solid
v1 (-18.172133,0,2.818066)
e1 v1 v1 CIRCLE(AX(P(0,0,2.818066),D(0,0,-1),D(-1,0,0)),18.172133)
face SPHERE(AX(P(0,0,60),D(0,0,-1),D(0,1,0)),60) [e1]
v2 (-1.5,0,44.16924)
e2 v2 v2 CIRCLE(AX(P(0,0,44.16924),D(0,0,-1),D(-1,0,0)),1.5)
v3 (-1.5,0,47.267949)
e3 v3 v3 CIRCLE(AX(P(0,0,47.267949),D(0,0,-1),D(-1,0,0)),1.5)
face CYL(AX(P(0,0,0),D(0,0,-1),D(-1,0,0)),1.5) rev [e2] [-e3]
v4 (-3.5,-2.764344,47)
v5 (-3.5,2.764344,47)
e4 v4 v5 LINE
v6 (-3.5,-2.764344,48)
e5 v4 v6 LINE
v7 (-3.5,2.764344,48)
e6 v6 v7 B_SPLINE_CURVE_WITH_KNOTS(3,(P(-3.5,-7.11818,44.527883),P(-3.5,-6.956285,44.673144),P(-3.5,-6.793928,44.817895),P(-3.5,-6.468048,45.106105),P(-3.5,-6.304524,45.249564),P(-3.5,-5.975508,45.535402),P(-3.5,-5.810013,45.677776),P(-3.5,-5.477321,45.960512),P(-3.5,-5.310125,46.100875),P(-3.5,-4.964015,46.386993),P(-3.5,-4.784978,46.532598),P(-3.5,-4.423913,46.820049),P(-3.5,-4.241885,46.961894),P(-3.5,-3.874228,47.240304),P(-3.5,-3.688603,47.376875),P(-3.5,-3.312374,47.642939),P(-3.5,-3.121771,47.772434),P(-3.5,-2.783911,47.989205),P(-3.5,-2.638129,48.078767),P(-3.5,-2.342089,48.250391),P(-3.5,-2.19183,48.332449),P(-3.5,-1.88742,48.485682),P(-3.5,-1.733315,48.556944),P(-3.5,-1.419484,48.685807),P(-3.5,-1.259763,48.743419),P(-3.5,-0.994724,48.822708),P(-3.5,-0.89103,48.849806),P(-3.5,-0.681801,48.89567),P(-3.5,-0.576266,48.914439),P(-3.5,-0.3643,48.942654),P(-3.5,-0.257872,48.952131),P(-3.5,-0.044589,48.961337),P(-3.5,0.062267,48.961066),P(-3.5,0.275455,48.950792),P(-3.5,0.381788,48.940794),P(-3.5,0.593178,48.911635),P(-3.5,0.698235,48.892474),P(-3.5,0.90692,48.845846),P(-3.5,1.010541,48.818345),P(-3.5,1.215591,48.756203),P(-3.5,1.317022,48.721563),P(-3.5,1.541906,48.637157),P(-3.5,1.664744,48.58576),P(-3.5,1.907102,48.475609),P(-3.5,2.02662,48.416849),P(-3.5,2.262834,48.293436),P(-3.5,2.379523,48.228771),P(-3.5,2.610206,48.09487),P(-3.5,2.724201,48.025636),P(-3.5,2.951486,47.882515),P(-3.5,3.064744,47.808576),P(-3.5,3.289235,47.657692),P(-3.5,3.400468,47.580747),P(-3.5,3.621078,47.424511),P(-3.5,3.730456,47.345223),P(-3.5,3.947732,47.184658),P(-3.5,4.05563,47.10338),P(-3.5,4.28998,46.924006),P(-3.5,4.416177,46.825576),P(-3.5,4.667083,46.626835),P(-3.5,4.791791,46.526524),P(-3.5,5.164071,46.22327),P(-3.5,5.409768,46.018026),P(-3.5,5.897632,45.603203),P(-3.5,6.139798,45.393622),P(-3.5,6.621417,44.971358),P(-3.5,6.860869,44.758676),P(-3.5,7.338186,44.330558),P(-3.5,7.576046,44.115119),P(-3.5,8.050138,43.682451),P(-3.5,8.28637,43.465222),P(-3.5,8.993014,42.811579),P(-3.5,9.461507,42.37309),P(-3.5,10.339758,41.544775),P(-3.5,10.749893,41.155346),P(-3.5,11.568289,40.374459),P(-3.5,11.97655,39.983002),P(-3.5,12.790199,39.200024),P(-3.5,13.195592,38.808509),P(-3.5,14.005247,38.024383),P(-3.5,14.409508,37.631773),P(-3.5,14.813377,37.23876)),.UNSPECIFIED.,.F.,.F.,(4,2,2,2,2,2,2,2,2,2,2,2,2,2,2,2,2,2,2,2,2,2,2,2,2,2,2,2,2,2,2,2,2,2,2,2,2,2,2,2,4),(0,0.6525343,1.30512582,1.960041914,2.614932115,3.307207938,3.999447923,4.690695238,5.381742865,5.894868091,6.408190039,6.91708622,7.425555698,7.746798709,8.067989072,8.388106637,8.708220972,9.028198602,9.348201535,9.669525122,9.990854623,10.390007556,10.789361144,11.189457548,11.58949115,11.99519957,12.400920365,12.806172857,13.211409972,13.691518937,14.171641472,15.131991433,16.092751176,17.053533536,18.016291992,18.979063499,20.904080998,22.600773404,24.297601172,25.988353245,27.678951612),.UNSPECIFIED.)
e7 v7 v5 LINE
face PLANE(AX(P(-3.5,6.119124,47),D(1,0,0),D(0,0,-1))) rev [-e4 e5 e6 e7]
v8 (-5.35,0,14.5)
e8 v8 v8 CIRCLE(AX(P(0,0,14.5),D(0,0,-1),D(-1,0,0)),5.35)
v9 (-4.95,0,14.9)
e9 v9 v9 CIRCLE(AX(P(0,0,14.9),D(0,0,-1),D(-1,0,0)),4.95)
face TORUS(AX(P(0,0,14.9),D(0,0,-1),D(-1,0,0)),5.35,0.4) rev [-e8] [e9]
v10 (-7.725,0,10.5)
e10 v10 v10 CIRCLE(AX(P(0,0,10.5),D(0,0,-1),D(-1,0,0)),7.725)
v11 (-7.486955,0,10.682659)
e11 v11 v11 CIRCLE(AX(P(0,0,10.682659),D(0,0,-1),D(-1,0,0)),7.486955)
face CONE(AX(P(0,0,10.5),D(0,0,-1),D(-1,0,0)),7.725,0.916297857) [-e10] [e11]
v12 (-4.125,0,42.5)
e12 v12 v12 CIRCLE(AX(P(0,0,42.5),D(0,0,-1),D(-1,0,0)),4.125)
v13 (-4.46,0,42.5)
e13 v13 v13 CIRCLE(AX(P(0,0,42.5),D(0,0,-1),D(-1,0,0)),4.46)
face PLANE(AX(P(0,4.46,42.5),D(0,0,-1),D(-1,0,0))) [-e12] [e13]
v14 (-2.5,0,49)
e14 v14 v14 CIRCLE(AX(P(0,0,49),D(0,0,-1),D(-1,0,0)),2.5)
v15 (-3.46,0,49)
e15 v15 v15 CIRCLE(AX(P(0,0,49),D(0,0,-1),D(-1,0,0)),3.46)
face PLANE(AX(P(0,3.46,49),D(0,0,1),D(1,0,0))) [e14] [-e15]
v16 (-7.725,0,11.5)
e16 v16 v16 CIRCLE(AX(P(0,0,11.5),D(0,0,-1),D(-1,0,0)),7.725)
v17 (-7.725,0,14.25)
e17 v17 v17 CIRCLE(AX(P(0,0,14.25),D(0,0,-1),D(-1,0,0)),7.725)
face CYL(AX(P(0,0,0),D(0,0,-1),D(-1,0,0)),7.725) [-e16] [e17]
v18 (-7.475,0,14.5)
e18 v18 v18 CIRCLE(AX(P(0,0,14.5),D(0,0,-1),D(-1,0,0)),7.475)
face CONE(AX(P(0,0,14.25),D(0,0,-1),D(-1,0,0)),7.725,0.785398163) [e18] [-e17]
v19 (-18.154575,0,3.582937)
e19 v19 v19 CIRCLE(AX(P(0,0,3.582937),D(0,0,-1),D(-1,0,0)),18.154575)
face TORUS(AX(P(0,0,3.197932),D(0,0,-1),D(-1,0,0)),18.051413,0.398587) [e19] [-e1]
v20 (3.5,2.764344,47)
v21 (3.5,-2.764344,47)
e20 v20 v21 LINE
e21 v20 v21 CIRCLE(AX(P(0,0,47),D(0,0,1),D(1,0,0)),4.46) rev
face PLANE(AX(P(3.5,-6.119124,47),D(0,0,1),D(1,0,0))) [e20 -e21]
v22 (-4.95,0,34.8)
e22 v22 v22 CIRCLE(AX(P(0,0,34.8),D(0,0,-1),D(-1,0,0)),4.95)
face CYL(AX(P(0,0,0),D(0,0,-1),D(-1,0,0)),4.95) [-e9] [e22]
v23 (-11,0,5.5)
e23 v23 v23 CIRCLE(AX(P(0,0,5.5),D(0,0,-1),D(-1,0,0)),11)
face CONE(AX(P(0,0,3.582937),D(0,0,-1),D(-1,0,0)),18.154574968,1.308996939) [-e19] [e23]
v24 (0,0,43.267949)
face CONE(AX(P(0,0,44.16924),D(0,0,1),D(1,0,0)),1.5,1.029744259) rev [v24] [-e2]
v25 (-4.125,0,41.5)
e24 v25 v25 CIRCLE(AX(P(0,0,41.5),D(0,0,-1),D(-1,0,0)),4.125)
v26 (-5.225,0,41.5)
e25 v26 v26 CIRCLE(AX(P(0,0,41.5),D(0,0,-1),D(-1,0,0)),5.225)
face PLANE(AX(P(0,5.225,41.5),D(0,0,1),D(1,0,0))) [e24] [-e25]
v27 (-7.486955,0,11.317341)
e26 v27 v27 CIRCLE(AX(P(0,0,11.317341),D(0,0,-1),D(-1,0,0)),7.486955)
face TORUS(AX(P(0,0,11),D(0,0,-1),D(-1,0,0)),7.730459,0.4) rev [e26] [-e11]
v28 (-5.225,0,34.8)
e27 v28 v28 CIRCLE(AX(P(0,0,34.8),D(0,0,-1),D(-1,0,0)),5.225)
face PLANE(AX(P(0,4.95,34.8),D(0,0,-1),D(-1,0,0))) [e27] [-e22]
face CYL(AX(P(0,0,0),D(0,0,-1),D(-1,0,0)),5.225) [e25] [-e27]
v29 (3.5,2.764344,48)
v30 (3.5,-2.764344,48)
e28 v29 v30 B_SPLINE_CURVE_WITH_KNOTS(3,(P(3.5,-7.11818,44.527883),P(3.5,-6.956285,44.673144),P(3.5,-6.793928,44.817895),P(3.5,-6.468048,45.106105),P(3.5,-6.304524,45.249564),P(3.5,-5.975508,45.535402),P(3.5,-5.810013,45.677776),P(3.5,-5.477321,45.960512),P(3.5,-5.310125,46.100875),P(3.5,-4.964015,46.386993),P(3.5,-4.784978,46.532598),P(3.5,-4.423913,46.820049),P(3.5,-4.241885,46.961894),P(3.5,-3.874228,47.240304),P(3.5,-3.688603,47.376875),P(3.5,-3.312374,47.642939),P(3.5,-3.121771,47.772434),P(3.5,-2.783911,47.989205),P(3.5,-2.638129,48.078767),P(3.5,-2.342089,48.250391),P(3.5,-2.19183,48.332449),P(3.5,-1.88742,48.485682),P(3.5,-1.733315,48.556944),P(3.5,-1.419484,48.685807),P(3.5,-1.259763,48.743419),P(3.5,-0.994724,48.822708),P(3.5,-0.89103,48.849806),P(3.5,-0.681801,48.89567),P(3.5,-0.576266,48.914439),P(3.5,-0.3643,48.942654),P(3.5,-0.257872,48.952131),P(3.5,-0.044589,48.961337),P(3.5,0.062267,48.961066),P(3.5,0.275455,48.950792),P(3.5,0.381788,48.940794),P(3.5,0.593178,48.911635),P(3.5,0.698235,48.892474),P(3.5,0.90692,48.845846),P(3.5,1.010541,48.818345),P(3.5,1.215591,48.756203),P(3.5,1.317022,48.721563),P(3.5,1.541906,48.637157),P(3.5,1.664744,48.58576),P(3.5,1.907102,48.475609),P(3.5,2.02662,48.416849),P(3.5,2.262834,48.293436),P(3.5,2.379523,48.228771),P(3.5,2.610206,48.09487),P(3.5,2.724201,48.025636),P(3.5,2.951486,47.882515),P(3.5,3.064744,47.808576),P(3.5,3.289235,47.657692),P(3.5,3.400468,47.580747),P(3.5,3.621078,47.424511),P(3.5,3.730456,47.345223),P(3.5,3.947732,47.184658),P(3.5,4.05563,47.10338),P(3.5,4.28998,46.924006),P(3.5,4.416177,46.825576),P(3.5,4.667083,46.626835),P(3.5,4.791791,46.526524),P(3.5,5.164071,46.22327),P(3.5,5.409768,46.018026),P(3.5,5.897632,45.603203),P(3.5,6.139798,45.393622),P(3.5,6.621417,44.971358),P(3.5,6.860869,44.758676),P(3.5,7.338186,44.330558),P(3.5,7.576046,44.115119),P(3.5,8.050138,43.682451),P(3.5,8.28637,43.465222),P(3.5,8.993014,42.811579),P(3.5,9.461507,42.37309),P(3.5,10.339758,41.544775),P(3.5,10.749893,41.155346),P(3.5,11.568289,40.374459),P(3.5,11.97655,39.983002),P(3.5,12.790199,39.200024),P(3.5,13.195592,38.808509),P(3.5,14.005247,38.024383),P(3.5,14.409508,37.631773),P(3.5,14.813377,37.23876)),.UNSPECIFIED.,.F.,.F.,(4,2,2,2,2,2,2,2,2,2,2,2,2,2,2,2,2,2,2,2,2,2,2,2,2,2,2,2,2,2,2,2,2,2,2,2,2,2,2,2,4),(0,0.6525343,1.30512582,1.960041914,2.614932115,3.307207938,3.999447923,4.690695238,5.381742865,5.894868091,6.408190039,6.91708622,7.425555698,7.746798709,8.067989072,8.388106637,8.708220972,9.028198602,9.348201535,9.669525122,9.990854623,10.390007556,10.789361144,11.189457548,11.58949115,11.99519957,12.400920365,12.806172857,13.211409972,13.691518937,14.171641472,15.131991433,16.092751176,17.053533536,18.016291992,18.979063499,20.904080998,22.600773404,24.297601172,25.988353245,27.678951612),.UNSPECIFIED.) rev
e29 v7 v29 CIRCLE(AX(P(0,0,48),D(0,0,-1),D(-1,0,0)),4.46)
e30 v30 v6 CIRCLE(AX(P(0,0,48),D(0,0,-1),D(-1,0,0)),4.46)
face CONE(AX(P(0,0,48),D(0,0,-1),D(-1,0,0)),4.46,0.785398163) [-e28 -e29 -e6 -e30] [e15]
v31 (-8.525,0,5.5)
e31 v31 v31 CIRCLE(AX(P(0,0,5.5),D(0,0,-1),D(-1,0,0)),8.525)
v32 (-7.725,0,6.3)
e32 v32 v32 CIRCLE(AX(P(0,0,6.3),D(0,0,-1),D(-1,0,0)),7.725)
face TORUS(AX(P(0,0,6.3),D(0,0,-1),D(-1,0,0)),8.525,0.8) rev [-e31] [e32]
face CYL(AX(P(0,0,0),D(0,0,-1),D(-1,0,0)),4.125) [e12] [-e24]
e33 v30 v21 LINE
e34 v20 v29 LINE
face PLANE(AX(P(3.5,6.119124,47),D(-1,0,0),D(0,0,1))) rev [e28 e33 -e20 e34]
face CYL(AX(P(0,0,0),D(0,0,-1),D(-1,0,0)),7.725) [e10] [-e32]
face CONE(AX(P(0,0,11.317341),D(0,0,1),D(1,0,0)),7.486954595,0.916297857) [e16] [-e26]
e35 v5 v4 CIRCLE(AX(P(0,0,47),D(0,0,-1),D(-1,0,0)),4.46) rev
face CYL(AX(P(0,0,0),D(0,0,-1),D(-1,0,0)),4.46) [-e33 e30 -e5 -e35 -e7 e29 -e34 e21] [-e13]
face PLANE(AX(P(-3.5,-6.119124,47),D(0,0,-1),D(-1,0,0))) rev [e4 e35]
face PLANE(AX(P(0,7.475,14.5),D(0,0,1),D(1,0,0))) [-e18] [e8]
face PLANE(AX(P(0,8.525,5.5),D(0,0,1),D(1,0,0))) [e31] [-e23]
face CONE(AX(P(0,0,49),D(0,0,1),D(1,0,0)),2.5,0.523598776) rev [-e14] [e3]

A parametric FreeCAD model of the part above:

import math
import FreeCAD as App
import Part
import Sketcher

V = App.Vector
Q = App.Units.Quantity

doc = App.newDocument("Part")
params = doc.addObject("Spreadsheet::Sheet", "Params")
for row, (alias, value) in enumerate([
    ("sketch1_radius", "60 mm"),
    ("sketch1_radius2", "0.4 mm"),
    ("sketch1_radius3", "0.8 mm"),
    ("sketch1_height", "1 mm"),
    ("sketch1_length", "2 mm"),
    ("revolution_angle", "360 deg"),
    ("pocket1_length", "2 mm"),
], start=1):
    params.set(f"A{row}", alias)
    params.set(f"B{row}", "=" + value)
    params.setAlias(f"B{row}", alias)

body = doc.addObject("PartDesign::Body", "Body")

sketch1 = doc.addObject("Sketcher::SketchObject", "Sketch")
body.addObject(sketch1)
sketch1.AttachmentSupport = (doc.YZ_Plane, [""])
sketch1.MapMode = "FlatFace"
sketch1.addGeometry([
    Part.LineSegment(V(7.72, 11.5, 0), V(7.72, 14.25, 0)),
    Part.LineSegment(V(7.72, 14.25, 0), V(7.47, 14.5, 0)),
    Part.LineSegment(V(7.47, 14.5, 0), V(5.35, 14.5, 0)),
    Part.ArcOfCircle(Part.Circle(V(5.35, 14.9, 0), V(0, 0, 1), 0.4), math.radians(-180), math.radians(-90)),
    Part.LineSegment(V(4.95, 14.9, 0), V(4.95, 34.8, 0)),
    Part.LineSegment(V(4.95, 34.8, 0), V(5.22, 34.8, 0)),
    Part.LineSegment(V(5.22, 34.8, 0), V(5.22, 41.5, 0)),
    Part.LineSegment(V(5.22, 41.5, 0), V(4.12, 41.5, 0)),
    Part.LineSegment(V(4.12, 41.5, 0), V(4.12, 42.5, 0)),
    Part.LineSegment(V(4.12, 42.5, 0), V(4.46, 42.5, 0)),
    Part.LineSegment(V(4.46, 42.5, 0), V(4.46, 48, 0)),
    Part.LineSegment(V(4.46, 48, 0), V(3.46, 49, 0)),
    Part.LineSegment(V(3.46, 49, 0), V(2.5, 49, 0)),
    Part.LineSegment(V(2.5, 49, 0), V(1.5, 47.27, 0)),
    Part.LineSegment(V(1.5, 47.27, 0), V(1.5, 44.17, 0)),
    Part.LineSegment(V(1.5, 44.17, 0), V(0, 43.27, 0)),
    Part.LineSegment(V(0, 43.27, 0), V(0, 0, 0)),
    Part.ArcOfCircle(Part.Circle(V(0, 60, 0), V(0, 0, 1), 60), math.radians(-90), math.radians(-72.37)),
    Part.ArcOfCircle(Part.Circle(V(18.05, 3.2, 0), V(0, 0, 1), 0.4), math.radians(-72), math.radians(75)),
    Part.LineSegment(V(18.15, 3.58, 0), V(11, 5.5, 0)),
    Part.LineSegment(V(11, 5.5, 0), V(8.53, 5.5, 0)),
    Part.ArcOfCircle(Part.Circle(V(8.53, 6.3, 0), V(0, 0, 1), 0.8), math.radians(180), math.radians(270)),
    Part.LineSegment(V(7.72, 6.3, 0), V(7.72, 10.5, 0)),
    Part.LineSegment(V(7.72, 10.5, 0), V(7.49, 10.68, 0)),
    Part.ArcOfCircle(Part.Circle(V(7.73, 11, 0), V(0, 0, 1), 0.4), math.radians(127), math.radians(233)),
    Part.LineSegment(V(7.49, 11.32, 0), V(7.72, 11.5, 0)),
], False)
sketch1.addConstraint([
    Sketcher.Constraint("Coincident", 0, 2, 1, 1),
    Sketcher.Constraint("Coincident", 1, 2, 2, 1),
    Sketcher.Constraint("Tangent", 2, 2, 3, 2),
    Sketcher.Constraint("Tangent", 3, 1, 4, 1),
    Sketcher.Constraint("Coincident", 4, 2, 5, 1),
    Sketcher.Constraint("Coincident", 5, 2, 6, 1),
    Sketcher.Constraint("Coincident", 6, 2, 7, 1),
    Sketcher.Constraint("Coincident", 7, 2, 8, 1),
    Sketcher.Constraint("Coincident", 8, 2, 9, 1),
    Sketcher.Constraint("Coincident", 9, 2, 10, 1),
    Sketcher.Constraint("Coincident", 10, 2, 11, 1),
    Sketcher.Constraint("Coincident", 11, 2, 12, 1),
    Sketcher.Constraint("Coincident", 12, 2, 13, 1),
    Sketcher.Constraint("Coincident", 13, 2, 14, 1),
    Sketcher.Constraint("Coincident", 14, 2, 15, 1),
    Sketcher.Constraint("Coincident", 15, 2, 16, 1),
    Sketcher.Constraint("Coincident", 16, 2, 17, 1),
    Sketcher.Constraint("Tangent", 17, 2, 18, 1),
    Sketcher.Constraint("Tangent", 18, 2, 19, 1),
    Sketcher.Constraint("Coincident", 19, 2, 20, 1),
    Sketcher.Constraint("Tangent", 20, 2, 21, 2),
    Sketcher.Constraint("Tangent", 21, 1, 22, 1),
    Sketcher.Constraint("Coincident", 22, 2, 23, 1),
    Sketcher.Constraint("Tangent", 23, 2, 24, 2),
    Sketcher.Constraint("Tangent", 24, 1, 25, 1),
    Sketcher.Constraint("Coincident", 25, 2, 0, 1),
    Sketcher.Constraint("Vertical", 0),
    Sketcher.Constraint("Horizontal", 2),
    Sketcher.Constraint("Vertical", 4),
    Sketcher.Constraint("Horizontal", 5),
    Sketcher.Constraint("Vertical", 6),
    Sketcher.Constraint("Horizontal", 7),
    Sketcher.Constraint("Vertical", 8),
    Sketcher.Constraint("Horizontal", 9),
    Sketcher.Constraint("Vertical", 10),
    Sketcher.Constraint("Horizontal", 12),
    Sketcher.Constraint("Vertical", 14),
    Sketcher.Constraint("Vertical", 16),
    Sketcher.Constraint("Horizontal", 20),
    Sketcher.Constraint("Vertical", 22),
    Sketcher.Constraint("Coincident", 16, 2, -1, 1),
    Sketcher.Constraint("Equal", 3, 24),
    Sketcher.Constraint("PointOnObject", 17, 3, -2),
    Sketcher.Constraint("Parallel", 1, 11),
    Sketcher.Constraint("Vertical", 0, 2, 21, 1),
    Sketcher.Constraint("Vertical", 23, 2, 24, 1),
    Sketcher.Constraint("Radius", 17, 60.0),
    Sketcher.Constraint("Radius", 3, 0.4),
    Sketcher.Constraint("Radius", 21, 0.8),
    Sketcher.Constraint("DistanceY", 8, 1, 8, 2, 1.0),
    Sketcher.Constraint("Angle", 1, Q("135 deg")),
    Sketcher.Constraint("Angle", 13, Q("-120 deg")),
    Sketcher.Constraint("Angle", 15, Q("-149 deg")),
    Sketcher.Constraint("Angle", 19, Q("165 deg")),
    Sketcher.Constraint("Distance", 13, 2.0),
    Sketcher.Constraint("DistanceX", 7, 2, 7, 1, 1.1),
    Sketcher.Constraint("DistanceY", 4, 1, 4, 2, 19.9),
    Sketcher.Constraint("DistanceY", 6, 1, 6, 2, 6.7),
    Sketcher.Constraint("DistanceY", 10, 1, 10, 2, 5.5),
    Sketcher.Constraint("DistanceY", 22, 1, 22, 2, 4.2),
    Sketcher.Constraint("DistanceY", -1, 1, 24, 3, 11.0),
    Sketcher.Constraint("DistanceY", -1, 1, 10, 2, 48.0),
    Sketcher.Constraint("DistanceY", -1, 1, 11, 2, 49.0),
    Sketcher.Constraint("DistanceX", -1, 1, 19, 2, 11.0),
    Sketcher.Constraint("Angle", 23, Q("142.5 deg")),
    Sketcher.Constraint("DistanceY", 15, 2, 13, 2, 4.0),
    Sketcher.Constraint("DistanceY", 20, 2, 1, 2, 9.0),
    Sketcher.Constraint("DistanceX", 12, 2, 12, 1, 0.96),
    Sketcher.Constraint("DistanceY", 0, 1, 0, 2, 2.75),
    Sketcher.Constraint("DistanceX", -1, 1, 12, 2, 2.5),
    Sketcher.Constraint("DistanceX", 2, 2, 2, 1, 2.125),
    Sketcher.Constraint("DistanceX", 5, 1, 5, 2, 0.275),
    Sketcher.Constraint("DistanceX", 9, 1, 9, 2, 0.335),
    Sketcher.Constraint("Radius", 18, 0.398587),
])
sketch1.setExpression("Constraints[46]", "Params.sketch1_radius")
sketch1.setExpression("Constraints[47]", "Params.sketch1_radius2")
sketch1.setExpression("Constraints[48]", "Params.sketch1_radius3")
sketch1.setExpression("Constraints[49]", "Params.sketch1_height")
sketch1.setExpression("Constraints[54]", "Params.sketch1_length")
revolution = doc.addObject("PartDesign::Revolution", "Revolution")
body.addObject(revolution)
revolution.Profile = sketch1
revolution.ReferenceAxis = (sketch1, ["V_Axis"])
revolution.setExpression("Angle", "Params.revolution_angle")

sketch2 = doc.addObject("Sketcher::SketchObject", "Sketch001")
body.addObject(sketch2)
sketch2.AttachmentSupport = (doc.XY_Plane, [""])
sketch2.MapMode = "FlatFace"
sketch2.AttachmentOffset = App.Placement(V(0, 0, 49), App.Rotation())
sketch2.addGeometry([
    Part.LineSegment(V(4, 6, 0), V(4, -6, 0)),
    Part.LineSegment(V(4, -6, 0), V(9, -6, 0)),
    Part.LineSegment(V(9, -6, 0), V(9, 6, 0)),
    Part.LineSegment(V(9, 6, 0), V(4, 6, 0)),
    Part.LineSegment(V(-9, 6, 0), V(-9, -6, 0)),
    Part.LineSegment(V(-9, -6, 0), V(-4, -6, 0)),
    Part.LineSegment(V(-4, -6, 0), V(-4, 6, 0)),
    Part.LineSegment(V(-4, 6, 0), V(-9, 6, 0)),
], False)
sketch2.addConstraint([
    Sketcher.Constraint("Coincident", 0, 2, 1, 1),
    Sketcher.Constraint("Coincident", 1, 2, 2, 1),
    Sketcher.Constraint("Coincident", 2, 2, 3, 1),
    Sketcher.Constraint("Coincident", 3, 2, 0, 1),
    Sketcher.Constraint("Coincident", 4, 2, 5, 1),
    Sketcher.Constraint("Coincident", 5, 2, 6, 1),
    Sketcher.Constraint("Coincident", 6, 2, 7, 1),
    Sketcher.Constraint("Coincident", 7, 2, 4, 1),
    Sketcher.Constraint("Vertical", 0),
    Sketcher.Constraint("Horizontal", 1),
    Sketcher.Constraint("Vertical", 2),
    Sketcher.Constraint("Horizontal", 3),
    Sketcher.Constraint("Vertical", 4),
    Sketcher.Constraint("Horizontal", 5),
    Sketcher.Constraint("Vertical", 6),
    Sketcher.Constraint("Horizontal", 7),
    Sketcher.Constraint("Symmetric", 2, 2, 4, 2, -1, 1),
    Sketcher.Constraint("Symmetric", 0, 2, 6, 2, -1, 1),
    Sketcher.Constraint("Horizontal", 1, 2, 4, 2),
    Sketcher.Constraint("DistanceX", 5, 2, 0, 2, 7.0),
    Sketcher.Constraint("DistanceY", 0, 2, 0, 1, 12.238249),
    Sketcher.Constraint("DistanceX", 1, 1, 1, 2, 5.640914),
])
pocket1 = doc.addObject("PartDesign::Pocket", "Pocket")
body.addObject(pocket1)
pocket1.Profile = sketch2
pocket1.setExpression("Length", "Params.pocket1_length")

doc.recompute()
